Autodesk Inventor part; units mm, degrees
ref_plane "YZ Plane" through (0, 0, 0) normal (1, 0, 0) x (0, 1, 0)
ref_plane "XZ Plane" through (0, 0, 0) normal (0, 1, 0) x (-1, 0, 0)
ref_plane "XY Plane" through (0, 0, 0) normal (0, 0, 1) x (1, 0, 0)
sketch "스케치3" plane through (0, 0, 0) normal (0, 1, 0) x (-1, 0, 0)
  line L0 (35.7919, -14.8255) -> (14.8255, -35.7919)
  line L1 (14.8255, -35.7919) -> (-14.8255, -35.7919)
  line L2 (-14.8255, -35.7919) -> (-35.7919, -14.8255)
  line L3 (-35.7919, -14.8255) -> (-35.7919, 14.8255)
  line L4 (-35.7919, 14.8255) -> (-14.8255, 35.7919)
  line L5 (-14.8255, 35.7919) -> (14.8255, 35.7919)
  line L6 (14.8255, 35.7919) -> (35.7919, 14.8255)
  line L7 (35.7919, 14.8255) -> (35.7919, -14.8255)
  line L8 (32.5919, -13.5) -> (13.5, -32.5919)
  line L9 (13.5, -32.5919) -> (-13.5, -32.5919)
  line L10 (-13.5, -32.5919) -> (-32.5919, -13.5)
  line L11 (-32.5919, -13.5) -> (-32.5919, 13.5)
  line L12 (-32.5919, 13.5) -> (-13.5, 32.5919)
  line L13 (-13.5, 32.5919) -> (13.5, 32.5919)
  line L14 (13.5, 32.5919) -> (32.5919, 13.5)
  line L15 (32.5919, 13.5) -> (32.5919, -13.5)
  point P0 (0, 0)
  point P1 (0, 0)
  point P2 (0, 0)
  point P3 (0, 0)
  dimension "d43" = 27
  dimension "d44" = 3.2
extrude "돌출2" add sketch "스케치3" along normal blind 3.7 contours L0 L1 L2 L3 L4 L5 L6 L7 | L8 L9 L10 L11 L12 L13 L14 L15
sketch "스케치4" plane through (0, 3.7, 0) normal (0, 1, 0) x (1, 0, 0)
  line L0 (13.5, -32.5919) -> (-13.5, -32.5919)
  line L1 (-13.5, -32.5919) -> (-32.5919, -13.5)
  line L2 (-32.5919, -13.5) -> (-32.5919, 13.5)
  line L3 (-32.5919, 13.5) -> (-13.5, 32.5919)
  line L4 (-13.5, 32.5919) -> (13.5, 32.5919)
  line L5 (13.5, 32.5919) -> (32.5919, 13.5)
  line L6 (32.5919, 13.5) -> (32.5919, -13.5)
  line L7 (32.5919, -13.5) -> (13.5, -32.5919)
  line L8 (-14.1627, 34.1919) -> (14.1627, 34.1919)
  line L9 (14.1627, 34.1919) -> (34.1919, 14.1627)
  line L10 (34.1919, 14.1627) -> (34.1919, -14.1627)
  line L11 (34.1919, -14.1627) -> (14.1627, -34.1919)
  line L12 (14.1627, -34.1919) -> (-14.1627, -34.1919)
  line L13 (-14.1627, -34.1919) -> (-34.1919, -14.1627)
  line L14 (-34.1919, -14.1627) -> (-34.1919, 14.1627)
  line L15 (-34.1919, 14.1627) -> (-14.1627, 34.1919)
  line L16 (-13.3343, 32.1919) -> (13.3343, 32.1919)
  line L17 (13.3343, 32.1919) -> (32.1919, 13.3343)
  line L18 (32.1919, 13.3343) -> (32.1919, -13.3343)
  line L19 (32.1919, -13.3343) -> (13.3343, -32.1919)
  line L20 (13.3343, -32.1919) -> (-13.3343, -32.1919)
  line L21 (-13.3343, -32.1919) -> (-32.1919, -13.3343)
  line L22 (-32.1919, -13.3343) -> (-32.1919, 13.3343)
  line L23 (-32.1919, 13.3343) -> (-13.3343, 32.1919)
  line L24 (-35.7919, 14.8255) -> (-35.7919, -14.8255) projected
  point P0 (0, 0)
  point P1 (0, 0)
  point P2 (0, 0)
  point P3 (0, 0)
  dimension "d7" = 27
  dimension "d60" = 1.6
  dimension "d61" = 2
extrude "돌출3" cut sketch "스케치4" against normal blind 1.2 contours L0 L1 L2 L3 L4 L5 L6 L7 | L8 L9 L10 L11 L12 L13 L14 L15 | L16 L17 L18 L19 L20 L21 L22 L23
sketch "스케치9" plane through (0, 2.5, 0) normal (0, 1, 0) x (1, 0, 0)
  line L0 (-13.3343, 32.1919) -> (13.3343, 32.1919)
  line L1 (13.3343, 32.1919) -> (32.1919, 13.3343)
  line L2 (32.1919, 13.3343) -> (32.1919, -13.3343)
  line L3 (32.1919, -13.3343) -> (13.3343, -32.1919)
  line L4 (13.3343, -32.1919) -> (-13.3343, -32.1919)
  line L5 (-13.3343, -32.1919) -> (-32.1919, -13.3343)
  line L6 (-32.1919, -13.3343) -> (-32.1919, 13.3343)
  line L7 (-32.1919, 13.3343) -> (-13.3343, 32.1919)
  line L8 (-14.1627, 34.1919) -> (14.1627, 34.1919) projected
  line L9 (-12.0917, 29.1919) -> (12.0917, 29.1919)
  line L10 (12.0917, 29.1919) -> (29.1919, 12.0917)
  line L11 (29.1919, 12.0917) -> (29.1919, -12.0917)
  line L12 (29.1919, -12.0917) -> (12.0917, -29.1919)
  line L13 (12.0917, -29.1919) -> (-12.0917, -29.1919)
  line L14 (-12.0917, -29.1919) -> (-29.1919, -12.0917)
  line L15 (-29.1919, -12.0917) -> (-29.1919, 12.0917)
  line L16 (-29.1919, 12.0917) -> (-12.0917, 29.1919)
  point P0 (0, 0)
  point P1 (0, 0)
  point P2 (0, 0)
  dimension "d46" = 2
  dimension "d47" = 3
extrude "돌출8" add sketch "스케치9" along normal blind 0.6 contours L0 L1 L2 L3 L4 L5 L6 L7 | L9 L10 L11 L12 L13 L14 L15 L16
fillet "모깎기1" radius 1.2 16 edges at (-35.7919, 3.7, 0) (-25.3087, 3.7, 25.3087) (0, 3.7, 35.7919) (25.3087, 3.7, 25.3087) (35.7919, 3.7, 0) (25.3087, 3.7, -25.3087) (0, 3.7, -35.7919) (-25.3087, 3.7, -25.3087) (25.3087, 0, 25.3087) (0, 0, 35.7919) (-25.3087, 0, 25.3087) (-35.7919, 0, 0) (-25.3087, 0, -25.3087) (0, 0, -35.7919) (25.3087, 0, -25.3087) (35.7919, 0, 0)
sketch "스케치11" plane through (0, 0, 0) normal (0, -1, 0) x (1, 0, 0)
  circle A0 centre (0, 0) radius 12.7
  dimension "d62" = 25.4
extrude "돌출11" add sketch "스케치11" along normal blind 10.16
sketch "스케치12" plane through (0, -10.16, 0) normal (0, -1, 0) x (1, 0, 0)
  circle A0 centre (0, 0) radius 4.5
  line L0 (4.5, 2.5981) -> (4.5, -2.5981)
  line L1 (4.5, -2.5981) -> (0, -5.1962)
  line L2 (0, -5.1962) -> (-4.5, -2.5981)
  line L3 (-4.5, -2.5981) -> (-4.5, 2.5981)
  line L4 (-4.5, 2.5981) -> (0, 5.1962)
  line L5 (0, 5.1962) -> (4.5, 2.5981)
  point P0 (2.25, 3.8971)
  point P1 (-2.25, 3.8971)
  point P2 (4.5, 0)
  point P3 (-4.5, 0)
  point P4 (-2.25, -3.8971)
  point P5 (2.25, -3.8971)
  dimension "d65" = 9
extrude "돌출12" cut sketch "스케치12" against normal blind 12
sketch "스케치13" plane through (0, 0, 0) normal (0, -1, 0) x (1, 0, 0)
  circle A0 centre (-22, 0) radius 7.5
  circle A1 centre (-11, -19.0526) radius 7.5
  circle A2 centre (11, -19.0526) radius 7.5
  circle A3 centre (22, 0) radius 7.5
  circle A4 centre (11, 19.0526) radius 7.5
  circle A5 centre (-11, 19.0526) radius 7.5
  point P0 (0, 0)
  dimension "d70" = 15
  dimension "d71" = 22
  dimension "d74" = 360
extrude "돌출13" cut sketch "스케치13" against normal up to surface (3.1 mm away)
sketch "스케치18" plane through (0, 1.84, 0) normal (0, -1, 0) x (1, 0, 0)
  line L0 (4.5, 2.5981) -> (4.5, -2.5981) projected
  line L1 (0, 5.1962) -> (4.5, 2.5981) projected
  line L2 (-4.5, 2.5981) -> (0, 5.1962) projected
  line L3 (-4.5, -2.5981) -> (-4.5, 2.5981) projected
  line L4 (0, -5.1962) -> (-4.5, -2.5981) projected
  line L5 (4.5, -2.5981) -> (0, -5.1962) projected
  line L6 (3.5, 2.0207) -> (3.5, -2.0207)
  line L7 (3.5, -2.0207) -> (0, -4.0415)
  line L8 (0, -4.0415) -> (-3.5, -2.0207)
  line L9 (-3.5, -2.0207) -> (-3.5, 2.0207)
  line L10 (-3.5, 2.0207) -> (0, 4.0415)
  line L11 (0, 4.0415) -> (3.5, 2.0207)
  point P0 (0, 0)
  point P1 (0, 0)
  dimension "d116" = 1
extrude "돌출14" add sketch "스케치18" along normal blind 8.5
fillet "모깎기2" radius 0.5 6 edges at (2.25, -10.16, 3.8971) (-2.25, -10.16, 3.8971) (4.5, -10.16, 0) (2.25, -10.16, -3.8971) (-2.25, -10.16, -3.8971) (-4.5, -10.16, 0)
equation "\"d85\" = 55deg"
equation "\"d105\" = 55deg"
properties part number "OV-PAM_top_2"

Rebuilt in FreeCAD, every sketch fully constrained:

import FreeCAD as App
import Part
import Sketcher
from FreeCAD import Vector
Q = App.Units.Quantity


def edges_at(feature, points):
    """Names of the edges that pass closest to the given points."""
    edges = feature.Shape.Edges
    near = lambda p: min(range(len(edges)), key=lambda i: edges[i].distToShape(Part.Vertex(*p))[0])
    return sorted({f"Edge{near(p) + 1}" for p in points})

doc = App.newDocument("Part")
params = doc.addObject("Spreadsheet::Sheet", "Params")
for row, (alias, value) in enumerate([
    ("pad1_length", "3.7 mm"),
    ("pocket1_length", "1.2 mm"),
    ("pad2_length", "0.6 mm"),
    ("fillet_radius", "1.2 mm"),
    ("sketch4_diameter", "25.4 mm"),
    ("pad3_length", "10.16 mm"),
    ("pocket2_length", "12 mm"),
    ("sketch6_diameter", "15 mm"),
    ("pocket3_length", "3.1 mm"),
    ("pad4_length", "8.5 mm"),
    ("fillet2_radius", "0.5 mm"),
], start=1):
    params.set(f"A{row}", alias)
    params.set(f"B{row}", "=" + value)
    params.setAlias(f"B{row}", alias)

body = doc.addObject("PartDesign::Body", "Body")

# Sketch on XZ plane
sketch1 = body.newObject("Sketcher::SketchObject", "Sketch")
sketch1.AttachmentSupport = (doc.getObject("XZ_Plane"), [""])
sketch1.MapMode = "FlatFace"
sketch1.addGeometry(Part.LineSegment(Vector(-15, -36, 0), Vector(-36, -15, 0)), False)
sketch1.addGeometry(Part.LineSegment(Vector(-36, -15, 0), Vector(-36, 15, 0)), False)
sketch1.addGeometry(Part.LineSegment(Vector(-36, 15, 0), Vector(-15, 36, 0)), False)
sketch1.addGeometry(Part.LineSegment(Vector(-15, 36, 0), Vector(15, 36, 0)), False)
sketch1.addGeometry(Part.LineSegment(Vector(15, 36, 0), Vector(36, 15, 0)), False)
sketch1.addGeometry(Part.LineSegment(Vector(36, 15, 0), Vector(36, -15, 0)), False)
sketch1.addGeometry(Part.LineSegment(Vector(36, -15, 0), Vector(15, -36, 0)), False)
sketch1.addGeometry(Part.LineSegment(Vector(15, -36, 0), Vector(-15, -36, 0)), False)
sketch1.addConstraint(Sketcher.Constraint("Coincident", 0, 2, 1, 1))
sketch1.addConstraint(Sketcher.Constraint("Coincident", 1, 2, 2, 1))
sketch1.addConstraint(Sketcher.Constraint("Coincident", 2, 2, 3, 1))
sketch1.addConstraint(Sketcher.Constraint("Coincident", 3, 2, 4, 1))
sketch1.addConstraint(Sketcher.Constraint("Coincident", 4, 2, 5, 1))
sketch1.addConstraint(Sketcher.Constraint("Coincident", 5, 2, 6, 1))
sketch1.addConstraint(Sketcher.Constraint("Coincident", 6, 2, 7, 1))
sketch1.addConstraint(Sketcher.Constraint("Coincident", 7, 2, 0, 1))
sketch1.addConstraint(Sketcher.Constraint("Vertical", 1))
sketch1.addConstraint(Sketcher.Constraint("Horizontal", 3))
sketch1.addConstraint(Sketcher.Constraint("Vertical", 5))
sketch1.addConstraint(Sketcher.Constraint("Horizontal", 7))
sketch1.addConstraint(Sketcher.Constraint("Symmetric", 0, 2, 4, 2, -1, 1))
sketch1.addConstraint(Sketcher.Constraint("Symmetric", 2, 2, 6, 2, -1, 1))
sketch1.addConstraint(Sketcher.Constraint("Perpendicular", 0, 2))
sketch1.addConstraint(Sketcher.Constraint("Perpendicular", 2, 4))
sketch1.addConstraint(Sketcher.Constraint("Perpendicular", 4, 6))
sketch1.addConstraint(Sketcher.Constraint("Horizontal", 1, 2, 4, 2))
sketch1.addConstraint(Sketcher.Constraint("Vertical", 3, 2, 6, 2))
sketch1.addConstraint(Sketcher.Constraint("Equal", 7, 1))
sketch1.addConstraint(Sketcher.Constraint("DistanceX", 3, 1, 3, 2, Q("29.651 mm")))
sketch1.addConstraint(Sketcher.Constraint("Distance", 0, Q("29.651 mm")))
pad1 = body.newObject("PartDesign::Pad", "Pad")
pad1.Profile = sketch1
pad1.setExpression("Length", "Params.pad1_length")
pad1.Reversed = True

# Sketch on XZ plane
sketch2 = body.newObject("Sketcher::SketchObject", "Sketch001")
sketch2.AttachmentSupport = (doc.getObject("XZ_Plane"), [""])
sketch2.MapMode = "FlatFace"
sketch2.AttachmentOffset = App.Placement(Vector(0, 0, -3.7), App.Rotation())
sketch2.addGeometry(Part.LineSegment(Vector(14, -34, 0), Vector(-14, -34, 0)), False)
sketch2.addGeometry(Part.LineSegment(Vector(-14, -34, 0), Vector(-34, -14, 0)), False)
sketch2.addGeometry(Part.LineSegment(Vector(-34, -14, 0), Vector(-34, 14, 0)), False)
sketch2.addGeometry(Part.LineSegment(Vector(-34, 14, 0), Vector(-14, 34, 0)), False)
sketch2.addGeometry(Part.LineSegment(Vector(-14, 34, 0), Vector(14, 34, 0)), False)
sketch2.addGeometry(Part.LineSegment(Vector(14, 34, 0), Vector(34, 14, 0)), False)
sketch2.addGeometry(Part.LineSegment(Vector(34, 14, 0), Vector(34, -14, 0)), False)
sketch2.addGeometry(Part.LineSegment(Vector(34, -14, 0), Vector(14, -34, 0)), False)
sketch2.addConstraint(Sketcher.Constraint("Coincident", 0, 2, 1, 1))
sketch2.addConstraint(Sketcher.Constraint("Coincident", 1, 2, 2, 1))
sketch2.addConstraint(Sketcher.Constraint("Coincident", 2, 2, 3, 1))
sketch2.addConstraint(Sketcher.Constraint("Coincident", 3, 2, 4, 1))
sketch2.addConstraint(Sketcher.Constraint("Coincident", 4, 2, 5, 1))
sketch2.addConstraint(Sketcher.Constraint("Coincident", 5, 2, 6, 1))
sketch2.addConstraint(Sketcher.Constraint("Coincident", 6, 2, 7, 1))
sketch2.addConstraint(Sketcher.Constraint("Coincident", 7, 2, 0, 1))
sketch2.addConstraint(Sketcher.Constraint("Horizontal", 0))
sketch2.addConstraint(Sketcher.Constraint("Vertical", 2))
sketch2.addConstraint(Sketcher.Constraint("Horizontal", 4))
sketch2.addConstraint(Sketcher.Constraint("Vertical", 6))
sketch2.addConstraint(Sketcher.Constraint("Symmetric", 0, 2, 4, 2, -1, 1))
sketch2.addConstraint(Sketcher.Constraint("Symmetric", 1, 2, 5, 2, -1, 1))
sketch2.addConstraint(Sketcher.Constraint("Perpendicular", 1, 3))
sketch2.addConstraint(Sketcher.Constraint("Perpendicular", 5, 7))
sketch2.addConstraint(Sketcher.Constraint("Horizontal", 2, 2, 5, 2))
sketch2.addConstraint(Sketcher.Constraint("Horizontal", 1, 2, 6, 2))
sketch2.addConstraint(Sketcher.Constraint("Vertical", 0, 2, 3, 2))
sketch2.addConstraint(Sketcher.Constraint("Equal", 4, 2))
sketch2.addConstraint(Sketcher.Constraint("DistanceX", 0, 2, 0, 1, Q("28.3254 mm")))
sketch2.addConstraint(Sketcher.Constraint("DistanceY", 0, 2, -1, 1, Q("34.192 mm")))
pocket1 = body.newObject("PartDesign::Pocket", "Pocket")
pocket1.Profile = sketch2
pocket1.setExpression("Length", "Params.pocket1_length")
pocket1.Reversed = True

# Sketch on XZ plane
sketch3 = body.newObject("Sketcher::SketchObject", "Sketch002")
sketch3.AttachmentSupport = (doc.getObject("XZ_Plane"), [""])
sketch3.MapMode = "FlatFace"
sketch3.AttachmentOffset = App.Placement(Vector(0, 0, -2.5), App.Rotation())
sketch3.addGeometry(Part.LineSegment(Vector(13, -32, 0), Vector(-13, -32, 0)), False)
sketch3.addGeometry(Part.LineSegment(Vector(-13, -32, 0), Vector(-32, -13, 0)), False)
sketch3.addGeometry(Part.LineSegment(Vector(-32, -13, 0), Vector(-32, 13, 0)), False)
sketch3.addGeometry(Part.LineSegment(Vector(-32, 13, 0), Vector(-13, 32, 0)), False)
sketch3.addGeometry(Part.LineSegment(Vector(-13, 32, 0), Vector(13, 32, 0)), False)
sketch3.addGeometry(Part.LineSegment(Vector(13, 32, 0), Vector(32, 13, 0)), False)
sketch3.addGeometry(Part.LineSegment(Vector(32, 13, 0), Vector(32, -13, 0)), False)
sketch3.addGeometry(Part.LineSegment(Vector(32, -13, 0), Vector(13, -32, 0)), False)
sketch3.addConstraint(Sketcher.Constraint("Coincident", 0, 2, 1, 1))
sketch3.addConstraint(Sketcher.Constraint("Coincident", 1, 2, 2, 1))
sketch3.addConstraint(Sketcher.Constraint("Coincident", 2, 2, 3, 1))
sketch3.addConstraint(Sketcher.Constraint("Coincident", 3, 2, 4, 1))
sketch3.addConstraint(Sketcher.Constraint("Coincident", 4, 2, 5, 1))
sketch3.addConstraint(Sketcher.Constraint("Coincident", 5, 2, 6, 1))
sketch3.addConstraint(Sketcher.Constraint("Coincident", 6, 2, 7, 1))
sketch3.addConstraint(Sketcher.Constraint("Coincident", 7, 2, 0, 1))
sketch3.addConstraint(Sketcher.Constraint("Horizontal", 0))
sketch3.addConstraint(Sketcher.Constraint("Vertical", 2))
sketch3.addConstraint(Sketcher.Constraint("Horizontal", 4))
sketch3.addConstraint(Sketcher.Constraint("Vertical", 6))
sketch3.addConstraint(Sketcher.Constraint("Symmetric", 0, 2, 4, 2, -1, 1))
sketch3.addConstraint(Sketcher.Constraint("Symmetric", 1, 2, 5, 2, -1, 1))
sketch3.addConstraint(Sketcher.Constraint("Perpendicular", 1, 3))
sketch3.addConstraint(Sketcher.Constraint("Perpendicular", 5, 7))
sketch3.addConstraint(Sketcher.Constraint("Horizontal", 2, 2, 5, 2))
sketch3.addConstraint(Sketcher.Constraint("Horizontal", 1, 2, 6, 2))
sketch3.addConstraint(Sketcher.Constraint("Vertical", 0, 2, 3, 2))
sketch3.addConstraint(Sketcher.Constraint("Equal", 4, 2))
sketch3.addConstraint(Sketcher.Constraint("DistanceX", 0, 2, 0, 1, Q("26.6686 mm")))
sketch3.addConstraint(Sketcher.Constraint("DistanceY", 0, 2, -1, 1, Q("32.192 mm")))
pad2 = body.newObject("PartDesign::Pad", "Pad001")
pad2.Profile = sketch3
pad2.setExpression("Length", "Params.pad2_length")
pad2.Reversed = True
doc.recompute()

fillet = body.newObject("PartDesign::Fillet", "Fillet")
fillet.Base = (pad2, edges_at(pad2, [
    (-35.792, 3.7, 0),
    (-25.309, 3.7, 25.309),
    (0, 3.7, 35.792),
    (25.309, 3.7, 25.309),
    (35.792, 3.7, 0),
    (25.309, 3.7, -25.309),
    (0, 3.7, -35.792),
    (-25.309, 3.7, -25.309),
    (25.309, 0, 25.309),
    (0, 0, 35.792),
    (-25.309, 0, 25.309),
    (-35.792, 0, 0),
    (-25.309, 0, -25.309),
    (0, 0, -35.792),
    (25.309, 0, -25.309),
    (35.792, 0, 0),
]))
fillet.setExpression("Radius", "Params.fillet_radius")

# Sketch on XZ plane
sketch4 = body.newObject("Sketcher::SketchObject", "Sketch003")
sketch4.AttachmentSupport = (doc.getObject("XZ_Plane"), [""])
sketch4.MapMode = "FlatFace"
sketch4.addGeometry(Part.Circle(Vector(0, 0, 0), Vector(0, 0, 1), 13), False)
sketch4.addConstraint(Sketcher.Constraint("Coincident", 0, 3, -1, 1))
sketch4.addConstraint(Sketcher.Constraint("Diameter", 0, Q("25.4 mm")))
sketch4.setExpression("Constraints[1]", "Params.sketch4_diameter")
pad3 = body.newObject("PartDesign::Pad", "Pad002")
pad3.Profile = sketch4
pad3.setExpression("Length", "Params.pad3_length")

# Sketch on XZ plane
sketch5 = body.newObject("Sketcher::SketchObject", "Sketch004")
sketch5.AttachmentSupport = (doc.getObject("XZ_Plane"), [""])
sketch5.MapMode = "FlatFace"
sketch5.AttachmentOffset = App.Placement(Vector(0, 0, 10.16), App.Rotation())
sketch5.addGeometry(Part.LineSegment(Vector(4, -3, 0), Vector(4, 3, 0)), False)
sketch5.addGeometry(Part.LineSegment(Vector(4, 3, 0), Vector(0, 5, 0)), False)
sketch5.addGeometry(Part.LineSegment(Vector(0, 5, 0), Vector(-4, 3, 0)), False)
sketch5.addGeometry(Part.LineSegment(Vector(-4, 3, 0), Vector(-4, -3, 0)), False)
sketch5.addGeometry(Part.LineSegment(Vector(-4, -3, 0), Vector(0, -5, 0)), False)
sketch5.addGeometry(Part.LineSegment(Vector(0, -5, 0), Vector(4, -3, 0)), False)
sketch5.addConstraint(Sketcher.Constraint("Coincident", 0, 2, 1, 1))
sketch5.addConstraint(Sketcher.Constraint("Coincident", 1, 2, 2, 1))
sketch5.addConstraint(Sketcher.Constraint("Coincident", 2, 2, 3, 1))
sketch5.addConstraint(Sketcher.Constraint("Coincident", 3, 2, 4, 1))
sketch5.addConstraint(Sketcher.Constraint("Coincident", 4, 2, 5, 1))
sketch5.addConstraint(Sketcher.Constraint("Coincident", 5, 2, 0, 1))
sketch5.addConstraint(Sketcher.Constraint("Vertical", 0))
sketch5.addConstraint(Sketcher.Constraint("Vertical", 3))
sketch5.addConstraint(Sketcher.Constraint("Symmetric", 0, 2, 3, 2, -1, 1))
sketch5.addConstraint(Sketcher.Constraint("Symmetric", 1, 2, 4, 2, -1, 1))
sketch5.addConstraint(Sketcher.Constraint("PointOnObject", 1, 2, -2))
sketch5.addConstraint(Sketcher.Constraint("Parallel", 2, 5))
sketch5.addConstraint(Sketcher.Constraint("Horizontal", 0, 2, 2, 2))
sketch5.addConstraint(Sketcher.Constraint("DistanceX", 2, 2, 0, 2, Q("9 mm")))
sketch5.addConstraint(Sketcher.Constraint("Angle", 1, Q("149.9998 deg")))
sketch5.addConstraint(Sketcher.Constraint("DistanceY", 0, 1, 0, 2, Q("5.1962 mm")))
pocket2 = body.newObject("PartDesign::Pocket", "Pocket001")
pocket2.Profile = sketch5
pocket2.setExpression("Length", "Params.pocket2_length")

# Sketch on XZ plane
sketch6 = body.newObject("Sketcher::SketchObject", "Sketch005")
sketch6.AttachmentSupport = (doc.getObject("XZ_Plane"), [""])
sketch6.MapMode = "FlatFace"
sketch6.addGeometry(Part.Circle(Vector(-22, 0, 0), Vector(0, 0, 1), 8), False)
sketch6.addGeometry(Part.Circle(Vector(-11, -19, 0), Vector(0, 0, 1), 8), False)
sketch6.addGeometry(Part.Circle(Vector(11, -19, 0), Vector(0, 0, 1), 8), False)
sketch6.addGeometry(Part.Circle(Vector(22, 0, 0), Vector(0, 0, 1), 8), False)
sketch6.addGeometry(Part.Circle(Vector(11, 19, 0), Vector(0, 0, 1), 8), False)
sketch6.addGeometry(Part.Circle(Vector(-11, 19, 0), Vector(0, 0, 1), 8), False)
sketch6.addConstraint(Sketcher.Constraint("Equal", 0, 1))
sketch6.addConstraint(Sketcher.Constraint("Equal", 1, 2))
sketch6.addConstraint(Sketcher.Constraint("Equal", 2, 3))
sketch6.addConstraint(Sketcher.Constraint("Equal", 3, 4))
sketch6.addConstraint(Sketcher.Constraint("Equal", 4, 5))
sketch6.addConstraint(Sketcher.Constraint("Symmetric", 0, 3, 3, 3, -1, 1))
sketch6.addConstraint(Sketcher.Constraint("Symmetric", 1, 3, 4, 3, -1, 1))
sketch6.addConstraint(Sketcher.Constraint("Symmetric", 2, 3, 5, 3, -1, 1))
sketch6.addConstraint(Sketcher.Constraint("Symmetric", 1, 3, 2, 3, -2))
sketch6.addConstraint(Sketcher.Constraint("PointOnObject", 0, 3, -1))
sketch6.addConstraint(Sketcher.Constraint("Diameter", 0, Q("15 mm")))
sketch6.addConstraint(Sketcher.Constraint("DistanceX", 0, 3, -1, 1, Q("22 mm")))
sketch6.addConstraint(Sketcher.Constraint("DistanceX", 1, 3, 2, 3, Q("22 mm")))
sketch6.addConstraint(Sketcher.Constraint("DistanceY", 1, 3, -1, 1, Q("19.0526 mm")))
sketch6.setExpression("Constraints[10]", "Params.sketch6_diameter")
pocket3 = body.newObject("PartDesign::Pocket", "Pocket002")
pocket3.Profile = sketch6
pocket3.setExpression("Length", "Params.pocket3_length")

# Sketch on XZ plane
sketch7 = body.newObject("Sketcher::SketchObject", "Sketch006")
sketch7.AttachmentSupport = (doc.getObject("XZ_Plane"), [""])
sketch7.MapMode = "FlatFace"
sketch7.AttachmentOffset = App.Placement(Vector(0, 0, -1.84), App.Rotation())
sketch7.addGeometry(Part.LineSegment(Vector(4.5, -2.6, 0), Vector(4.5, 2.6, 0)), False)
sketch7.addGeometry(Part.LineSegment(Vector(4.5, 2.6, 0), Vector(0, 5.2, 0)), False)
sketch7.addGeometry(Part.LineSegment(Vector(0, 5.2, 0), Vector(-4.5, 2.6, 0)), False)
sketch7.addGeometry(Part.LineSegment(Vector(-4.5, 2.6, 0), Vector(-4.5, -2.6, 0)), False)
sketch7.addGeometry(Part.LineSegment(Vector(-4.5, -2.6, 0), Vector(0, -5.2, 0)), False)
sketch7.addGeometry(Part.LineSegment(Vector(0, -5.2, 0), Vector(4.5, -2.6, 0)), False)
sketch7.addGeometry(Part.LineSegment(Vector(0, 4, 0), Vector(3.5, 2, 0)), False)
sketch7.addGeometry(Part.LineSegment(Vector(3.5, 2, 0), Vector(3.5, -2, 0)), False)
sketch7.addGeometry(Part.LineSegment(Vector(3.5, -2, 0), Vector(0, -4, 0)), False)
sketch7.addGeometry(Part.LineSegment(Vector(0, -4, 0), Vector(-3.5, -2, 0)), False)
sketch7.addGeometry(Part.LineSegment(Vector(-3.5, -2, 0), Vector(-3.5, 2, 0)), False)
sketch7.addGeometry(Part.LineSegment(Vector(-3.5, 2, 0), Vector(0, 4, 0)), False)
sketch7.addConstraint(Sketcher.Constraint("Coincident", 0, 2, 1, 1))
sketch7.addConstraint(Sketcher.Constraint("Coincident", 1, 2, 2, 1))
sketch7.addConstraint(Sketcher.Constraint("Coincident", 2, 2, 3, 1))
sketch7.addConstraint(Sketcher.Constraint("Coincident", 3, 2, 4, 1))
sketch7.addConstraint(Sketcher.Constraint("Coincident", 4, 2, 5, 1))
sketch7.addConstraint(Sketcher.Constraint("Coincident", 5, 2, 0, 1))
sketch7.addConstraint(Sketcher.Constraint("Coincident", 6, 2, 7, 1))
sketch7.addConstraint(Sketcher.Constraint("Coincident", 7, 2, 8, 1))
sketch7.addConstraint(Sketcher.Constraint("Coincident", 8, 2, 9, 1))
sketch7.addConstraint(Sketcher.Constraint("Coincident", 9, 2, 10, 1))
sketch7.addConstraint(Sketcher.Constraint("Coincident", 10, 2, 11, 1))
sketch7.addConstraint(Sketcher.Constraint("Coincident", 11, 2, 6, 1))
sketch7.addConstraint(Sketcher.Constraint("Vertical", 0))
sketch7.addConstraint(Sketcher.Constraint("Vertical", 3))
sketch7.addConstraint(Sketcher.Constraint("Vertical", 7))
sketch7.addConstraint(Sketcher.Constraint("Vertical", 10))
sketch7.addConstraint(Sketcher.Constraint("Symmetric", 0, 2, 3, 2, -1, 1))
sketch7.addConstraint(Sketcher.Constraint("Symmetric", 1, 2, 4, 2, -1, 1))
sketch7.addConstraint(Sketcher.Constraint("Symmetric", 6, 2, 9, 2, -1, 1))
sketch7.addConstraint(Sketcher.Constraint("Symmetric", 8, 2, 11, 2, -1, 1))
sketch7.addConstraint(Sketcher.Constraint("PointOnObject", 1, 2, -2))
sketch7.addConstraint(Sketcher.Constraint("PointOnObject", 8, 2, -2))
sketch7.addConstraint(Sketcher.Constraint("Parallel", 2, 5))
sketch7.addConstraint(Sketcher.Constraint("Parallel", 4, 6))
sketch7.addConstraint(Sketcher.Constraint("Parallel", 5, 8))
sketch7.addConstraint(Sketcher.Constraint("Parallel", 8, 11))
sketch7.addConstraint(Sketcher.Constraint("Horizontal", 0, 2, 2, 2))
sketch7.addConstraint(Sketcher.Constraint("DistanceX", 6, 2, 0, 2, Q("1 mm")))
sketch7.addConstraint(Sketcher.Constraint("Angle", 1, Q("149.9998 deg")))
sketch7.addConstraint(Sketcher.Constraint("DistanceX", 2, 2, 0, 2, Q("9 mm")))
sketch7.addConstraint(Sketcher.Constraint("DistanceY", 0, 1, 0, 2, Q("5.1962 mm")))
sketch7.addConstraint(Sketcher.Constraint("DistanceY", 7, 2, 7, 1, Q("4.0414 mm")))
pad4 = body.newObject("PartDesign::Pad", "Pad003")
pad4.Profile = sketch7
pad4.setExpression("Length", "Params.pad4_length")
doc.recompute()

fillet2 = body.newObject("PartDesign::Fillet", "Fillet001")
fillet2.Base = (pad4, edges_at(pad4, [
    (2.25, -10.16, 3.897),
    (-2.25, -10.16, 3.897),
    (4.5, -10.16, 0),
    (2.25, -10.16, -3.897),
    (-2.25, -10.16, -3.897),
    (-4.5, -10.16, 0),
]))
fillet2.setExpression("Radius", "Params.fillet2_radius")

doc.recompute()
